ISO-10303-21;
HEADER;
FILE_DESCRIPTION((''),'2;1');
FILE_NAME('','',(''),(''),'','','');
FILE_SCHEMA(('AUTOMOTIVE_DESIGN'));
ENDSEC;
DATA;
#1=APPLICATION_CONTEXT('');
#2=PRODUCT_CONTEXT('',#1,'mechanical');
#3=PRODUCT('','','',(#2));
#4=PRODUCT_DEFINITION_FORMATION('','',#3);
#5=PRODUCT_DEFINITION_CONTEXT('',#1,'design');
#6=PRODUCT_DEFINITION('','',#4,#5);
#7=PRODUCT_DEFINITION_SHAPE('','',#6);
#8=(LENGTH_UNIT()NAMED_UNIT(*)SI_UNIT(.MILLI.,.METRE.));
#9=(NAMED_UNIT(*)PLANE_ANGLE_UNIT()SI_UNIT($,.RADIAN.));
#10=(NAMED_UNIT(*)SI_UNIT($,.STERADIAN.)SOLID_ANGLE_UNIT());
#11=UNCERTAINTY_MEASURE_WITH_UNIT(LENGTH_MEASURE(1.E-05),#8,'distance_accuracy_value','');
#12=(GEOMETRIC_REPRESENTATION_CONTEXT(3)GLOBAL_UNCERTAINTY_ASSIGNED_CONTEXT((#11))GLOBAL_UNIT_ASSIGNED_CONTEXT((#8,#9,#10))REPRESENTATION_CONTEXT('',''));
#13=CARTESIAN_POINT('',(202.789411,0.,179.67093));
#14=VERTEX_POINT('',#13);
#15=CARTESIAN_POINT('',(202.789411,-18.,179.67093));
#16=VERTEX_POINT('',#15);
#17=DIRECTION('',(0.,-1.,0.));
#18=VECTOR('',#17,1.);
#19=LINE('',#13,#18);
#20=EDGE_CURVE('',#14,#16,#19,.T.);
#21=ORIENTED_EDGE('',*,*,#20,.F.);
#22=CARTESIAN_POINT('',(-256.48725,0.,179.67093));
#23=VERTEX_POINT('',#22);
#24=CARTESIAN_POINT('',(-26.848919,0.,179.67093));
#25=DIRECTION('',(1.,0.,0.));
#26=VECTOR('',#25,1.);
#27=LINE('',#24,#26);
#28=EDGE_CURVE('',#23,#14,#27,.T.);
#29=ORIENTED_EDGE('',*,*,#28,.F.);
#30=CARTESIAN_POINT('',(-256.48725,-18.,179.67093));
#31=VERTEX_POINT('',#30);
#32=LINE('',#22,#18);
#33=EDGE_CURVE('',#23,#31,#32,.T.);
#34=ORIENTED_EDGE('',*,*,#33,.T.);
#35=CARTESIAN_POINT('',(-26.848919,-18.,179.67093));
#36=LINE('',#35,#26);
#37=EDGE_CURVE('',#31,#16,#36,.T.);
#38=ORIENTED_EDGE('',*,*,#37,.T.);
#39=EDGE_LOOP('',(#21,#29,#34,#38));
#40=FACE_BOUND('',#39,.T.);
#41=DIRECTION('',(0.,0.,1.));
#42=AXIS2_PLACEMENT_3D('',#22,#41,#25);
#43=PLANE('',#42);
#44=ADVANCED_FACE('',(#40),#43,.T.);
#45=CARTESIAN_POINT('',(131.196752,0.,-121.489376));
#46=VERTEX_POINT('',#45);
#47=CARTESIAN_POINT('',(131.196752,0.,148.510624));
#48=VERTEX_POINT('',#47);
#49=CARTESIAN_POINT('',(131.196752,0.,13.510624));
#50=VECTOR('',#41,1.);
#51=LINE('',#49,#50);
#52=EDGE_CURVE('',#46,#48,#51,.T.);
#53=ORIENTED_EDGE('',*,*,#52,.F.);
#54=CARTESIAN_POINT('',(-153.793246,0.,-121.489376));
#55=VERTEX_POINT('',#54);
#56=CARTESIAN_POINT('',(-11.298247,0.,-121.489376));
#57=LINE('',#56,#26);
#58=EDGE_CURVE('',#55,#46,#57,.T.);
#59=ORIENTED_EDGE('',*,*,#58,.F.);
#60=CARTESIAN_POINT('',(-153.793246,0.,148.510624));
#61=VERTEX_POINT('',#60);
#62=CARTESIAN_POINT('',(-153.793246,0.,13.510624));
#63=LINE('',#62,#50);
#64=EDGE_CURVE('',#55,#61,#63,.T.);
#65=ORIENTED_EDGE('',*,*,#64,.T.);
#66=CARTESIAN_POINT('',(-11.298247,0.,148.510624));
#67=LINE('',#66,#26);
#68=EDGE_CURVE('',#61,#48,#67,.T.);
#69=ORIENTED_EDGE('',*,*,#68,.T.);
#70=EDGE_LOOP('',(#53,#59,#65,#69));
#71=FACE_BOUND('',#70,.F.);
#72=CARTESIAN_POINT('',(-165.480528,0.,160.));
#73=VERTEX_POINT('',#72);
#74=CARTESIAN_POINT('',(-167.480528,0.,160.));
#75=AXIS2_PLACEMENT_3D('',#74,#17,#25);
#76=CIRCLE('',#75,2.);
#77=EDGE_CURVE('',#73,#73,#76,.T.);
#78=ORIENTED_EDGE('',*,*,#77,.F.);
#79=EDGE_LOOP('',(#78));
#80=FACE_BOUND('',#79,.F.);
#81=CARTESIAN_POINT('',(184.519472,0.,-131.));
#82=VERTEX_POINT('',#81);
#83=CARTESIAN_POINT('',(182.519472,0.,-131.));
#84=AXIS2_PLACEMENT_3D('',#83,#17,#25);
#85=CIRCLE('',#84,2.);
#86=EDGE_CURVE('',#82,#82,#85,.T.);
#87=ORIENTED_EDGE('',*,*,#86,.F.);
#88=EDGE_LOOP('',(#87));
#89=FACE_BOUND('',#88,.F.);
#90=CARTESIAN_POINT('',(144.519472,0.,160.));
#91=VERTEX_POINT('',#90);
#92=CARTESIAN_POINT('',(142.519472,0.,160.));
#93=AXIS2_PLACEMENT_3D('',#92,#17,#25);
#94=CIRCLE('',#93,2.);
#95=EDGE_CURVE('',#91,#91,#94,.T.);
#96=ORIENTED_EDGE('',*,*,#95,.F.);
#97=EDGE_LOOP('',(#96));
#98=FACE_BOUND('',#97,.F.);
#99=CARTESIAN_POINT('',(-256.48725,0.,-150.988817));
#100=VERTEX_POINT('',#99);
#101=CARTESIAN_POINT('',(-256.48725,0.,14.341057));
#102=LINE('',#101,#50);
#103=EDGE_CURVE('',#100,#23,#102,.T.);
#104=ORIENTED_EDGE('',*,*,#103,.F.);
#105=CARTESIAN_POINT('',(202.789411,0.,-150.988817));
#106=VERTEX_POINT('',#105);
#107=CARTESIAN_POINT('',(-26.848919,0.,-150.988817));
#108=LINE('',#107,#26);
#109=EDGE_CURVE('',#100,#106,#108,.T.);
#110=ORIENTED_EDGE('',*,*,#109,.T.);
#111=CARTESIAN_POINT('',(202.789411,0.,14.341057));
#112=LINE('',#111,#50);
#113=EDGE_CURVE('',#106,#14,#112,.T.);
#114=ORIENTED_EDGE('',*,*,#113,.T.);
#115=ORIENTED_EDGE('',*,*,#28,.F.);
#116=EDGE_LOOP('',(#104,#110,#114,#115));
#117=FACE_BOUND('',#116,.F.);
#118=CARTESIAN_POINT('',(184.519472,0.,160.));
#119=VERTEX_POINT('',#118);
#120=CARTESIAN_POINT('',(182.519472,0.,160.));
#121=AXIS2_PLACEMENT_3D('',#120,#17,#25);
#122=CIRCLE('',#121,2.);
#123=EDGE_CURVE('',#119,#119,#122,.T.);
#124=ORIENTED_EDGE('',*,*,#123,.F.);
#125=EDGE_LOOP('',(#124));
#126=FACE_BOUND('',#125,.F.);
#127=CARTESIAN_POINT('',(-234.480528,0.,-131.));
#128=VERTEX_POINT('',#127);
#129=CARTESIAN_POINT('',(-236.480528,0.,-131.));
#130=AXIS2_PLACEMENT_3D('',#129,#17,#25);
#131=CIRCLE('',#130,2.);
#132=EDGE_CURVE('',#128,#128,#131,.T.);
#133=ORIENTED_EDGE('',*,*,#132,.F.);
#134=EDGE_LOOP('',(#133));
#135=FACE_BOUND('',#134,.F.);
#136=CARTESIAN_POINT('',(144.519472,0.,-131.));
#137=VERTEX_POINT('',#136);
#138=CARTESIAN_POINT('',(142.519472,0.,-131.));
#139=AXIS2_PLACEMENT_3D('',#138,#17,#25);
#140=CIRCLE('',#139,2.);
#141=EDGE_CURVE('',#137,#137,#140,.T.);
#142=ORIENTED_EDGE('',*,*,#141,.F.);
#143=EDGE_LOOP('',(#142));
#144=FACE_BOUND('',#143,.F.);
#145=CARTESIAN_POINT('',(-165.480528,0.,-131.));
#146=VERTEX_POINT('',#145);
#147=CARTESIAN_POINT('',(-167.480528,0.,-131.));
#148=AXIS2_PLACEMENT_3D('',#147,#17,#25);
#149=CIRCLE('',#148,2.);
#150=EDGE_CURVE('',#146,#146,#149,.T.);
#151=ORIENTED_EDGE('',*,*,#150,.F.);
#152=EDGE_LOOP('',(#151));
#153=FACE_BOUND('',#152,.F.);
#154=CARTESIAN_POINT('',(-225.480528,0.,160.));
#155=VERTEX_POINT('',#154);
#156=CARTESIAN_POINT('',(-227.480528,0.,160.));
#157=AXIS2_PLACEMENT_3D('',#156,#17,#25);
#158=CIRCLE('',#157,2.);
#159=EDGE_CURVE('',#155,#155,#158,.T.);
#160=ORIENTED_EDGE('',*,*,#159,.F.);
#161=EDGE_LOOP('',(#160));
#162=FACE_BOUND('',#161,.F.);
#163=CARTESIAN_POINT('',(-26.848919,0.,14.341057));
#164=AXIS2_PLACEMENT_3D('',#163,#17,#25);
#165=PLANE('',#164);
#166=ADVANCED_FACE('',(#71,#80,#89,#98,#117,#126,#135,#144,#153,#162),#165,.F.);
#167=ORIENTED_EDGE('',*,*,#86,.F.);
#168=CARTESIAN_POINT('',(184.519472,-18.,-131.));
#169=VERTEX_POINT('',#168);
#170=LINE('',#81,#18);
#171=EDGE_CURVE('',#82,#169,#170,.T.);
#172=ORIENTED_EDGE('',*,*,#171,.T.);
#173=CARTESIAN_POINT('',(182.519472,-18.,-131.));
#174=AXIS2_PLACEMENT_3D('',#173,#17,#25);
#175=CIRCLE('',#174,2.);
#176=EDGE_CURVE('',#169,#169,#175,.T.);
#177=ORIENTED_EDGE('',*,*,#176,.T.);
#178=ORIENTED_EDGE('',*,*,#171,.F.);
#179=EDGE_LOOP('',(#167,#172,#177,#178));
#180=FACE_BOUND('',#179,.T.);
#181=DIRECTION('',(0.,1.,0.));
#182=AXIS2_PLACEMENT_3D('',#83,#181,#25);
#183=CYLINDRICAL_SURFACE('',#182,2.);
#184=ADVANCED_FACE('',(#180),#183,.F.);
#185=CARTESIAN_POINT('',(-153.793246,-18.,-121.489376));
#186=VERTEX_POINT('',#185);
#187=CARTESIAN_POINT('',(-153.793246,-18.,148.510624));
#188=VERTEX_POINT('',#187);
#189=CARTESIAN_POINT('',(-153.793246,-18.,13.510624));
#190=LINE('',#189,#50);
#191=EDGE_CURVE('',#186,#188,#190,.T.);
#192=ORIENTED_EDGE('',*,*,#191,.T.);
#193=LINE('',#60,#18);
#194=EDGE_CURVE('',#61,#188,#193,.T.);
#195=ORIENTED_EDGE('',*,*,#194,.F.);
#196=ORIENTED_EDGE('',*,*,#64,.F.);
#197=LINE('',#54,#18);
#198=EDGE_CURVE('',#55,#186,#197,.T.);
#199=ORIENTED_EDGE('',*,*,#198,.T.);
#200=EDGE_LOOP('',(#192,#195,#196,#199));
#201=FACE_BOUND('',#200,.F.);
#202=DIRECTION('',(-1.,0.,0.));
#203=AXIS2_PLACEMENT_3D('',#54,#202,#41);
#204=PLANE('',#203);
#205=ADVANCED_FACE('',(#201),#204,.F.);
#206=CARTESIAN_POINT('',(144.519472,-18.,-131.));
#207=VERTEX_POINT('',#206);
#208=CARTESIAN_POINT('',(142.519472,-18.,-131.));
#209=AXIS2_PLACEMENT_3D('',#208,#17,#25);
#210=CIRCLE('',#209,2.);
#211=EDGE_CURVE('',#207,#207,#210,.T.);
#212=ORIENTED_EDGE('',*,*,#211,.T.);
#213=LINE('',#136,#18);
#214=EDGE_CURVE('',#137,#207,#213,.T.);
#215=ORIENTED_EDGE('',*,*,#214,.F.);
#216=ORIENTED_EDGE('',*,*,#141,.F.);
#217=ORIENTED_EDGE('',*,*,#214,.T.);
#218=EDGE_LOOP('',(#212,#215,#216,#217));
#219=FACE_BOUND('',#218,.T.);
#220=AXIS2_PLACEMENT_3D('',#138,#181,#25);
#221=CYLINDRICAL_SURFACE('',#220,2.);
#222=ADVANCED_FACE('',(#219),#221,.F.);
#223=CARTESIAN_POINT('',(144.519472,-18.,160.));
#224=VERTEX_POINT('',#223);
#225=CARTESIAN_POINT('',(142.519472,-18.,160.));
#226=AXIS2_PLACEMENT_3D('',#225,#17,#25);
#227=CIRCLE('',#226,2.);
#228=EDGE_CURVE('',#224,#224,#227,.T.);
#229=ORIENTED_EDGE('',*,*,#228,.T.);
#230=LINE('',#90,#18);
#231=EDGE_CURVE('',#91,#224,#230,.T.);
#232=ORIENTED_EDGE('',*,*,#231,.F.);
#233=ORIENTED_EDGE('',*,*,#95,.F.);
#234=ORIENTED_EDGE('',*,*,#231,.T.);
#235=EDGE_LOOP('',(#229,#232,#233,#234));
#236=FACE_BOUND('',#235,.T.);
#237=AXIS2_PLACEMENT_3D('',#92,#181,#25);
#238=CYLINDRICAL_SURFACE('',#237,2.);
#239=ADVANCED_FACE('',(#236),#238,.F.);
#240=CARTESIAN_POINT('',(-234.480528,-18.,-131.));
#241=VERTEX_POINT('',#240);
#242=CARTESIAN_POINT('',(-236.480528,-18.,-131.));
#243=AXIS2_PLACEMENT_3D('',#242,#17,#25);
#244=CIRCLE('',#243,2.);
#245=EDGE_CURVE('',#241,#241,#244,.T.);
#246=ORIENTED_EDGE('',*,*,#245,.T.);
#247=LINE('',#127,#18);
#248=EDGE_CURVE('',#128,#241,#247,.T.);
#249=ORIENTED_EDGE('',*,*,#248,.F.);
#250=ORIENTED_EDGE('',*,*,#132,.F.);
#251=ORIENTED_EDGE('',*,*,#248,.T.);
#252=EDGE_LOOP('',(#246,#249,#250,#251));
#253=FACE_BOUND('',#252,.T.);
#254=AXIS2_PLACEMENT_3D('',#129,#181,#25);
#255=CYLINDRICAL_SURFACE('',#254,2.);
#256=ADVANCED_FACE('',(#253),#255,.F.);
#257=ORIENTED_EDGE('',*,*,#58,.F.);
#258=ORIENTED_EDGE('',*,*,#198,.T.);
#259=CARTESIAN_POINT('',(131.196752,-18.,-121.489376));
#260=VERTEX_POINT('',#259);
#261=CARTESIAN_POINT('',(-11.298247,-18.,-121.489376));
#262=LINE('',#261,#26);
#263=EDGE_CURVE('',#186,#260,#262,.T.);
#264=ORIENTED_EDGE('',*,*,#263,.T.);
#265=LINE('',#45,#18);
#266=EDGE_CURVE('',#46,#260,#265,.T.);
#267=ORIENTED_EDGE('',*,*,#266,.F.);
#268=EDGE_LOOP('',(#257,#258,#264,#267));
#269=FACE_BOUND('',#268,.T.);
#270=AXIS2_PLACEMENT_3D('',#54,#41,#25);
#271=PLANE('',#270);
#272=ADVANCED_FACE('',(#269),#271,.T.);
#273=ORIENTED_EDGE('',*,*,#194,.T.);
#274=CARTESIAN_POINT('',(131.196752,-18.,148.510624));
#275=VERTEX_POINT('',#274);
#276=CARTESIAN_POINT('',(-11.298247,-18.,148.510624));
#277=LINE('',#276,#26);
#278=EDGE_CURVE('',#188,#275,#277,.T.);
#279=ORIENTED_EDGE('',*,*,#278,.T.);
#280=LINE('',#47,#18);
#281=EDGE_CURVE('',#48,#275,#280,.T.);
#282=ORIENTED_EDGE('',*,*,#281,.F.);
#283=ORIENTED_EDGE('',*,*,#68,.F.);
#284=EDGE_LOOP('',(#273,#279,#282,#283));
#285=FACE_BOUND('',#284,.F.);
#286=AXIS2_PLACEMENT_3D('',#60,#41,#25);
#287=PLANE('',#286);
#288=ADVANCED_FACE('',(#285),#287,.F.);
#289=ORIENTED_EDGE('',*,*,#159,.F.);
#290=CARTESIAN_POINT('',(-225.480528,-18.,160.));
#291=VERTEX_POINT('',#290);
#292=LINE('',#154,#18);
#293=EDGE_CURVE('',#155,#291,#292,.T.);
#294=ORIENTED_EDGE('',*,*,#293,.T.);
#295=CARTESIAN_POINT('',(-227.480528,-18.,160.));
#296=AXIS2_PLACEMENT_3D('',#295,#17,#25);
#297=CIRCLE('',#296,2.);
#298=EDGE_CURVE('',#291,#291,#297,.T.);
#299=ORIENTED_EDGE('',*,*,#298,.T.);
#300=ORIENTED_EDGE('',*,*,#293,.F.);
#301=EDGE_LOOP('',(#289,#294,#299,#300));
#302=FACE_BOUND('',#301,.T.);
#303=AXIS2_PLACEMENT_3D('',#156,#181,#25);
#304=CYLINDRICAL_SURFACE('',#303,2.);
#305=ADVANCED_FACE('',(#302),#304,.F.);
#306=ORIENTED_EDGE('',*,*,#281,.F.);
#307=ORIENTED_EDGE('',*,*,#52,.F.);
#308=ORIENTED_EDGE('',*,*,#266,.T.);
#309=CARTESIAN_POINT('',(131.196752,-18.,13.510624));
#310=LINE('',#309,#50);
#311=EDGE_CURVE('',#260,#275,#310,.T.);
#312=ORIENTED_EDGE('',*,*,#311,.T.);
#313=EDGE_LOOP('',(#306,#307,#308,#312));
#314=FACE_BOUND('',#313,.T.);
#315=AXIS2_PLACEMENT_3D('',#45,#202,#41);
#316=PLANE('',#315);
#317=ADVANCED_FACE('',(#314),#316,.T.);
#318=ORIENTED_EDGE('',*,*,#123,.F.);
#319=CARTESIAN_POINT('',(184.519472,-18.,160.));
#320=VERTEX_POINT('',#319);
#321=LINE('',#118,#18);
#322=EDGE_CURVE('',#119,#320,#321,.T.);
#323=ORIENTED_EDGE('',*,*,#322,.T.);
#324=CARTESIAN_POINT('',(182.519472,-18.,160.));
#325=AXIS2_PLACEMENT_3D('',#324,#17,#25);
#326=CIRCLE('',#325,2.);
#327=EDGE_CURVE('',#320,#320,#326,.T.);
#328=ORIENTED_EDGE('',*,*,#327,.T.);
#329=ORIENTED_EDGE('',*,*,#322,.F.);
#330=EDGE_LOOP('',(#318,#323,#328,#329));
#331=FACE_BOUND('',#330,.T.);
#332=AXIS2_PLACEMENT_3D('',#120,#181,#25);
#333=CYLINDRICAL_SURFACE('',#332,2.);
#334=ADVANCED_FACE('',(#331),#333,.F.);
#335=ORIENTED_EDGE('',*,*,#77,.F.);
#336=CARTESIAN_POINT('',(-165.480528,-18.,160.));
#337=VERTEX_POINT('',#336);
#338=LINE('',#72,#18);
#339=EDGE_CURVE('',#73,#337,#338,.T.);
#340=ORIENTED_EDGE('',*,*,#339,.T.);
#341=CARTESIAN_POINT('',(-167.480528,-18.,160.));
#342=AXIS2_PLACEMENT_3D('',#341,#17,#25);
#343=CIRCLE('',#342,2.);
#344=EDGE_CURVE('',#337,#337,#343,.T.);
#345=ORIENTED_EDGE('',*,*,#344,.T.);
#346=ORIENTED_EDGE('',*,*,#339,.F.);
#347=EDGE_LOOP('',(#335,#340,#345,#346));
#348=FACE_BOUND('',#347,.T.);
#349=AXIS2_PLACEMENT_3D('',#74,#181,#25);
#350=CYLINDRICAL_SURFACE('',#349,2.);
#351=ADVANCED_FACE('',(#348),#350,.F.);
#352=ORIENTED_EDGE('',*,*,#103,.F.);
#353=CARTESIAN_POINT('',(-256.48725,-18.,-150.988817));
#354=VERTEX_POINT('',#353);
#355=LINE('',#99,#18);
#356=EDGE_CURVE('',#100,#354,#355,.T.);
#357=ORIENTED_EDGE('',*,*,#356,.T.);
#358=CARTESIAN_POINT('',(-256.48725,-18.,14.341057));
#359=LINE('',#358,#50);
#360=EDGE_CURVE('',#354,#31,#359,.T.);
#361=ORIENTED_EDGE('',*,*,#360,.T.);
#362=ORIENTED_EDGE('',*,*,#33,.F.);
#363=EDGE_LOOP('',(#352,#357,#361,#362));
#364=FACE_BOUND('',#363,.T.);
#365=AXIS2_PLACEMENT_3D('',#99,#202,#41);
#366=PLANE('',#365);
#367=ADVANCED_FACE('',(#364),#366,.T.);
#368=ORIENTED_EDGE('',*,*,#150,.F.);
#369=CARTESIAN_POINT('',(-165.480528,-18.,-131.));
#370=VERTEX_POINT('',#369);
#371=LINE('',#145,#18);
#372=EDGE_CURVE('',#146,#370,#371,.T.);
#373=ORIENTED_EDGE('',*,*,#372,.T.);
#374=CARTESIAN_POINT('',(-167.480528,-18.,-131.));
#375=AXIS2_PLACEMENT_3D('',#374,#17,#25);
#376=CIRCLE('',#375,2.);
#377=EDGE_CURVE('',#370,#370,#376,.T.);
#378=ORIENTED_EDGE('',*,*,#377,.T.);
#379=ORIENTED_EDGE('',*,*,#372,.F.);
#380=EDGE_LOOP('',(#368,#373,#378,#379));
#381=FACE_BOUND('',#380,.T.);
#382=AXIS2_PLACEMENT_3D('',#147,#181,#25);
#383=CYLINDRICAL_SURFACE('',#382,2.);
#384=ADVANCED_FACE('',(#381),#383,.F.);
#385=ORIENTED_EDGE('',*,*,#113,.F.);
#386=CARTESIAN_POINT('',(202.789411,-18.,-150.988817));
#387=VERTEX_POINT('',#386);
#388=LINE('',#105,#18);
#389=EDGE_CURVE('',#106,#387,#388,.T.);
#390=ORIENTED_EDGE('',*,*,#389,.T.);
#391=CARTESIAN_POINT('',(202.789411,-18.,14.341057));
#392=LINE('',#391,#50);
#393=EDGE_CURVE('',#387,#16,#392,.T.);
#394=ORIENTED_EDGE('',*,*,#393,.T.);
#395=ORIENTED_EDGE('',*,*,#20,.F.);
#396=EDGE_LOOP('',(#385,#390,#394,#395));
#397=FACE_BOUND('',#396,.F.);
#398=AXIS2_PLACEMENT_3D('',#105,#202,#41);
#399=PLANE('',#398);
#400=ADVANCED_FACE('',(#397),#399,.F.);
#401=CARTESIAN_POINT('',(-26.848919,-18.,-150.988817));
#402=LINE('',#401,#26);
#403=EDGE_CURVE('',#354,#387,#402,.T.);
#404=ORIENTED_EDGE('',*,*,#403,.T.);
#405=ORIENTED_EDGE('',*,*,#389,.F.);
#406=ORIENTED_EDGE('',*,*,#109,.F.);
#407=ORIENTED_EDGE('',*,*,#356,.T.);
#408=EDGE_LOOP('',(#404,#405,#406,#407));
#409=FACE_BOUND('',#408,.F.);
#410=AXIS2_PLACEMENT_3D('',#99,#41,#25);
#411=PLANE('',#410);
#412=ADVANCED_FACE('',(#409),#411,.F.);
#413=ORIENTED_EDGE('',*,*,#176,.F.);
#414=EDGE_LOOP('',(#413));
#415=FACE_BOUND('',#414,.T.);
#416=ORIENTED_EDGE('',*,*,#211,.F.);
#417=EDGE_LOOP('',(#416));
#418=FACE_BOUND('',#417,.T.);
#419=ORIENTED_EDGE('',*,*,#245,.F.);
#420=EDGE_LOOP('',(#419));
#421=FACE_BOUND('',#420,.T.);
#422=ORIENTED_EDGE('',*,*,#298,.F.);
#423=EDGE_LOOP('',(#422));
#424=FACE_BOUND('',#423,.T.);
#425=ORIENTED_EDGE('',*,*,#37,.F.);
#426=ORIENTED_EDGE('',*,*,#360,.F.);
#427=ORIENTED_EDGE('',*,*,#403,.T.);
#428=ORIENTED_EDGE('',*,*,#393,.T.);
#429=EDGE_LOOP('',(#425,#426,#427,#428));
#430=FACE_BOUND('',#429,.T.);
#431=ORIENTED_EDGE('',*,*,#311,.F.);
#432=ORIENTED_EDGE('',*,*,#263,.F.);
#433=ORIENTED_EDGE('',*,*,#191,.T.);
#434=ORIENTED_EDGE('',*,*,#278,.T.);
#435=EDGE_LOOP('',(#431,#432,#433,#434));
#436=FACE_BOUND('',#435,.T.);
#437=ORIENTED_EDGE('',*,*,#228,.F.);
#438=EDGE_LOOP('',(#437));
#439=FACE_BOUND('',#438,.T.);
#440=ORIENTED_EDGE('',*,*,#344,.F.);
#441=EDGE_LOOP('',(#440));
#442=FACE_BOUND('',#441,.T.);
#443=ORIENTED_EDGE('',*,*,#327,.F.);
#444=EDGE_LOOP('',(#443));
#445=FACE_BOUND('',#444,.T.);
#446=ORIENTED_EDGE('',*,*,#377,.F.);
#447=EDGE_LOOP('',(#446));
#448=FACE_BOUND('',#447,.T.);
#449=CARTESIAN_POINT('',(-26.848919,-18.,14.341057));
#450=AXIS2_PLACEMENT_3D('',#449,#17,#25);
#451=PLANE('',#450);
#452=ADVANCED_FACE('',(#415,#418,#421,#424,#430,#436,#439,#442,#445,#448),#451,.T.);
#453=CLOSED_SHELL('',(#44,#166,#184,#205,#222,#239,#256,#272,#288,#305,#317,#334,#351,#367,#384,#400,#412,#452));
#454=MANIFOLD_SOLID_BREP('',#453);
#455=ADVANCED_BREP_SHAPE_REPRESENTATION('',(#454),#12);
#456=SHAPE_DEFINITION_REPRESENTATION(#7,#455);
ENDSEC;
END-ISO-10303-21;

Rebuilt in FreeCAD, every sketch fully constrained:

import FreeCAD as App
import Part
import Sketcher
from FreeCAD import Vector


def add_polygon(sketch, points):
    """Adds a closed chain of lines whose ends are joined by coincident constraints."""
    first, n = sketch.GeometryCount, len(points)
    for a, b in zip(points, points[1:] + points[:1]):
        sketch.addGeometry(Part.LineSegment(App.Vector(*a, 0), App.Vector(*b, 0)), False)
    for i in range(n):
        sketch.addConstraint(Sketcher.Constraint("Coincident", first + i, 2, first + (i + 1) % n, 1))

doc = App.newDocument("Part")
params = doc.addObject("Spreadsheet::Sheet", "Params")
for row, (alias, value) in enumerate([
    ("sketch1_diameter", "4 mm"),
    ("sketch1_height", "270 mm"),
    ("sketch1_width", "284.989998 mm"),
    ("pad1_length", "18 mm"),
], start=1):
    params.set(f"A{row}", alias)
    params.set(f"B{row}", "=" + value)
    params.setAlias(f"B{row}", alias)

body = doc.addObject("PartDesign::Body", "Body")

sketch1 = body.newObject("Sketcher::SketchObject", "Sketch")
sketch1.AttachmentSupport = (doc.getObject("XZ_Plane"), [""])
sketch1.MapMode = "FlatFace"
add_polygon(sketch1, [(-256.5, 179.7), (-256.5, -151), (202.8, -151), (202.8, 179.7)])
sketch1.addGeometry(Part.Circle(Vector(-236.5, -131, 0), Vector(0, 0, 1), 2), False)
sketch1.addGeometry(Part.Circle(Vector(-167.5, -131, 0), Vector(0, 0, 1), 2), False)
sketch1.addGeometry(Part.Circle(Vector(142.5, -131, 0), Vector(0, 0, 1), 2), False)
sketch1.addGeometry(Part.Circle(Vector(182.5, -131, 0), Vector(0, 0, 1), 2), False)
add_polygon(sketch1, [(131.2, -121.5), (-153.8, -121.5), (-153.8, 148.5), (131.2, 148.5)])
sketch1.addGeometry(Part.Circle(Vector(-227.5, 160, 0), Vector(0, 0, 1), 2), False)
sketch1.addGeometry(Part.Circle(Vector(-167.5, 160, 0), Vector(0, 0, 1), 2), False)
sketch1.addGeometry(Part.Circle(Vector(142.5, 160, 0), Vector(0, 0, 1), 2), False)
sketch1.addGeometry(Part.Circle(Vector(182.5, 160, 0), Vector(0, 0, 1), 2), False)
sketch1.addConstraint(Sketcher.Constraint("Vertical", 0))
sketch1.addConstraint(Sketcher.Constraint("Horizontal", 1))
sketch1.addConstraint(Sketcher.Constraint("Vertical", 2))
sketch1.addConstraint(Sketcher.Constraint("Horizontal", 3))
sketch1.addConstraint(Sketcher.Constraint("Horizontal", 8))
sketch1.addConstraint(Sketcher.Constraint("Vertical", 9))
sketch1.addConstraint(Sketcher.Constraint("Horizontal", 10))
sketch1.addConstraint(Sketcher.Constraint("Vertical", 11))
sketch1.addConstraint(Sketcher.Constraint("Equal", 4, 5))
sketch1.addConstraint(Sketcher.Constraint("Equal", 5, 6))
sketch1.addConstraint(Sketcher.Constraint("Equal", 6, 7))
sketch1.addConstraint(Sketcher.Constraint("Equal", 7, 12))
sketch1.addConstraint(Sketcher.Constraint("Equal", 12, 13))
sketch1.addConstraint(Sketcher.Constraint("Equal", 13, 14))
sketch1.addConstraint(Sketcher.Constraint("Equal", 14, 15))
sketch1.addConstraint(Sketcher.Constraint("Horizontal", 4, 3, 5, 3))
sketch1.addConstraint(Sketcher.Constraint("Horizontal", 5, 3, 6, 3))
sketch1.addConstraint(Sketcher.Constraint("Horizontal", 6, 3, 7, 3))
sketch1.addConstraint(Sketcher.Constraint("Horizontal", 12, 3, 13, 3))
sketch1.addConstraint(Sketcher.Constraint("Horizontal", 13, 3, 14, 3))
sketch1.addConstraint(Sketcher.Constraint("Horizontal", 14, 3, 15, 3))
sketch1.addConstraint(Sketcher.Constraint("Vertical", 5, 3, 13, 3))
sketch1.addConstraint(Sketcher.Constraint("Vertical", 6, 3, 14, 3))
sketch1.addConstraint(Sketcher.Constraint("Vertical", 7, 3, 15, 3))
sketch1.addConstraint(Sketcher.Constraint("Diameter", 4, 4.0))
sketch1.addConstraint(Sketcher.Constraint("DistanceY", 9, 1, 9, 2, 270.0))
sketch1.addConstraint(Sketcher.Constraint("DistanceY", 4, 3, -1, 1, 131.0))
sketch1.addConstraint(Sketcher.Constraint("DistanceY", -1, 1, 12, 3, 160.0))
sketch1.addConstraint(Sketcher.Constraint("DistanceX", 4, 3, 5, 3, 69.0))
sketch1.addConstraint(Sketcher.Constraint("DistanceX", 5, 3, 6, 3, 310.0))
sketch1.addConstraint(Sketcher.Constraint("DistanceX", 6, 3, 7, 3, 40.0))
sketch1.addConstraint(Sketcher.Constraint("DistanceX", 4, 3, 12, 3, 9.0))
sketch1.addConstraint(Sketcher.Constraint("DistanceX", 8, 2, 8, 1, 284.989998))
sketch1.addConstraint(Sketcher.Constraint("DistanceX", 1, 1, 1, 2, 459.276661))
sketch1.addConstraint(Sketcher.Constraint("DistanceY", 0, 2, 0, 1, 330.659747))
sketch1.addConstraint(Sketcher.Constraint("DistanceX", 4, 3, -1, 1, 236.480528))
sketch1.addConstraint(Sketcher.Constraint("DistanceX", 0, 2, -1, 1, 256.48725))
sketch1.addConstraint(Sketcher.Constraint("DistanceY", -1, 1, 2, 2, 179.67093))
sketch1.addConstraint(Sketcher.Constraint("DistanceX", -1, 1, 10, 2, 131.196752))
sketch1.addConstraint(Sketcher.Constraint("DistanceY", 0, 2, 8, 2, 29.499441))
sketch1.setExpression("Constraints[32]", "Params.sketch1_diameter")
sketch1.setExpression("Constraints[33]", "Params.sketch1_height")
sketch1.setExpression("Constraints[40]", "Params.sketch1_width")
pad1 = body.newObject("PartDesign::Pad", "Pad")
pad1.Profile = sketch1
pad1.setExpression("Length", "Params.pad1_length")

doc.recompute()
